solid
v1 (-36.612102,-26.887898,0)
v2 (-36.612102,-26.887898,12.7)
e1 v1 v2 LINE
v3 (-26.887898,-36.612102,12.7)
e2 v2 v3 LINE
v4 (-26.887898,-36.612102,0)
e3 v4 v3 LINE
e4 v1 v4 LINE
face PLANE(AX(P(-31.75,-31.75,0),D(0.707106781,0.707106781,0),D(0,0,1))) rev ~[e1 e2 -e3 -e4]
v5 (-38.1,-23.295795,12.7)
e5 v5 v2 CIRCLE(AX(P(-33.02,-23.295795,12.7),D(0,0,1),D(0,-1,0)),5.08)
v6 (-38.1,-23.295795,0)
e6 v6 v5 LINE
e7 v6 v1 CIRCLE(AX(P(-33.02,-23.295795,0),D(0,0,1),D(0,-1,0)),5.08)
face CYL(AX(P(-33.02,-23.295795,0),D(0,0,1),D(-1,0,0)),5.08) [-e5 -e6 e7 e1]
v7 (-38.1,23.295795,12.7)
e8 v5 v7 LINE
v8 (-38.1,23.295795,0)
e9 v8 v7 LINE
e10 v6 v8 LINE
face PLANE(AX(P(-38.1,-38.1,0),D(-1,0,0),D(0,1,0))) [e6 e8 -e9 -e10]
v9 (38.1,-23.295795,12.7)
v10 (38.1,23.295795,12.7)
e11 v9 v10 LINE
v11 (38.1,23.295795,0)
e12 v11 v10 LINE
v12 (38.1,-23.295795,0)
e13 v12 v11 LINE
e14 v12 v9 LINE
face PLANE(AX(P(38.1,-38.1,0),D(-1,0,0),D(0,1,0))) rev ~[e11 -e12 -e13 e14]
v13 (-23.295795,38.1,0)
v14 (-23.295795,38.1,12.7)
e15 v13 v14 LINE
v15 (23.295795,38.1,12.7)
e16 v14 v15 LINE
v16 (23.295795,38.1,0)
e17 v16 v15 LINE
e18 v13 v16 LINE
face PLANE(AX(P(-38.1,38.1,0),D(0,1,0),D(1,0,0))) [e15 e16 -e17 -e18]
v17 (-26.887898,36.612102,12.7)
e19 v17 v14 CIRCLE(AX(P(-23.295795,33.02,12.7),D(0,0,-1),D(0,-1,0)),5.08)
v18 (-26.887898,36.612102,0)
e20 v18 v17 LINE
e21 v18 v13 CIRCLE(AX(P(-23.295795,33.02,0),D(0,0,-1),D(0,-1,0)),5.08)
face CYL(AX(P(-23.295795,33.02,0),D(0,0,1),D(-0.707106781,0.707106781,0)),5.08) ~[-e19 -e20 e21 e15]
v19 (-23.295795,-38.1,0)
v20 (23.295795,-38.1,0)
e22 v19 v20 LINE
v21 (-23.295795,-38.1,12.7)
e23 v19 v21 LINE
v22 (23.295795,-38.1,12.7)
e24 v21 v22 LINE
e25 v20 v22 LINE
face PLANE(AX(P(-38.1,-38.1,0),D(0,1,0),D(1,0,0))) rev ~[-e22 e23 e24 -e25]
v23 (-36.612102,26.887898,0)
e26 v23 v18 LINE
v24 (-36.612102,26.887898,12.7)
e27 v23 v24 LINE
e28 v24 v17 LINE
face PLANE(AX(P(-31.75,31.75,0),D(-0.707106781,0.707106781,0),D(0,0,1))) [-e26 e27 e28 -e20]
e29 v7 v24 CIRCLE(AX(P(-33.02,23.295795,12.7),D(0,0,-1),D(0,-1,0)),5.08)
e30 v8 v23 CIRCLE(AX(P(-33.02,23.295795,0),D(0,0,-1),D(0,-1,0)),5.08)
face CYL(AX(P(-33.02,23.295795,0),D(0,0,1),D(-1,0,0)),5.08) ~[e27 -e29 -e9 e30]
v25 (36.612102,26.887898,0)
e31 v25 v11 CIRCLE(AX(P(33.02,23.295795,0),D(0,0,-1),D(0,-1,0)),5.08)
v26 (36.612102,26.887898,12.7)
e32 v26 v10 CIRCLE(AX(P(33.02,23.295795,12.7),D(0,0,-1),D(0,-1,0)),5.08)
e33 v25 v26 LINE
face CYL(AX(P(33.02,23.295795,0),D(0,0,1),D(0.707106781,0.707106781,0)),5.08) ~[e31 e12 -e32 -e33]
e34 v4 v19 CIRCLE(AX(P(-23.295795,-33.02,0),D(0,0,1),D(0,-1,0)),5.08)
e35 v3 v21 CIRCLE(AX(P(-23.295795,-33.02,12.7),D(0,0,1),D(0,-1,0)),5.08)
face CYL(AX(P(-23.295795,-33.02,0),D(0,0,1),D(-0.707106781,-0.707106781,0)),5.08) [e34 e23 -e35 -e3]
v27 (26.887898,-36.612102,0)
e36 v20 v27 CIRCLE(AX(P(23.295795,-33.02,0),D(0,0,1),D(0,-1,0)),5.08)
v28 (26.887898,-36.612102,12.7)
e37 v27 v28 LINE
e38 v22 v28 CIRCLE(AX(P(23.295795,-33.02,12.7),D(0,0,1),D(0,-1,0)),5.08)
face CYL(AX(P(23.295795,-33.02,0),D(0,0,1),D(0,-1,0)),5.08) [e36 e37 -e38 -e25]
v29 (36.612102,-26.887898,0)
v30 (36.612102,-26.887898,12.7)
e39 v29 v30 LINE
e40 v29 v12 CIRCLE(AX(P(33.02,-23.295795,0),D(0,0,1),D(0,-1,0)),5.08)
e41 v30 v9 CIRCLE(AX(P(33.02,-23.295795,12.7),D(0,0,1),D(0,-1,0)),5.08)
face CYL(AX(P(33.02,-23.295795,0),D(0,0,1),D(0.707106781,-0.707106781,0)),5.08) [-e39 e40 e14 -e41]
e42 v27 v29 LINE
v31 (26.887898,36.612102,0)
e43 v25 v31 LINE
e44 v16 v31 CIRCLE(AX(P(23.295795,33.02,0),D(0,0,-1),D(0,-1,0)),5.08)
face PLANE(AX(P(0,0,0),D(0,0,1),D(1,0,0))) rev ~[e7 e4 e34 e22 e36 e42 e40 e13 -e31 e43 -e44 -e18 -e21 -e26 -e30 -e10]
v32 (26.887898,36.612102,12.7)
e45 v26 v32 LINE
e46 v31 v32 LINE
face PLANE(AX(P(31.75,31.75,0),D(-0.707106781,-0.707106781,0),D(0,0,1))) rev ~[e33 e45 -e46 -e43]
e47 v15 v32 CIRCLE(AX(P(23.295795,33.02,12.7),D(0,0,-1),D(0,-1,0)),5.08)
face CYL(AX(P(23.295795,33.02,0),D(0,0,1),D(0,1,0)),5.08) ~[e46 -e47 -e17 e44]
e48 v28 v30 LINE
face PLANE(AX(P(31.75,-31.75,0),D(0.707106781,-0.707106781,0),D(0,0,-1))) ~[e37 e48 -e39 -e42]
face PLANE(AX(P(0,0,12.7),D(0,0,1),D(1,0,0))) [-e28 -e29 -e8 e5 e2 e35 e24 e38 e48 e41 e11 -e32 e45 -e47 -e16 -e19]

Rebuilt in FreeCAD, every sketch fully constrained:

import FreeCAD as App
import Part
import Sketcher
from FreeCAD import Vector
Q = App.Units.Quantity


def edges_at(feature, points):
    """Names of the edges that pass closest to the given points."""
    edges = feature.Shape.Edges
    near = lambda p: min(range(len(edges)), key=lambda i: edges[i].distToShape(Part.Vertex(*p))[0])
    return sorted({f"Edge{near(p) + 1}" for p in points})


def add_polygon(sketch, points):
    """Adds a closed chain of lines whose ends are joined by coincident constraints."""
    first, n = sketch.GeometryCount, len(points)
    for a, b in zip(points, points[1:] + points[:1]):
        sketch.addGeometry(Part.LineSegment(App.Vector(*a, 0), App.Vector(*b, 0)), False)
    for i in range(n):
        sketch.addConstraint(Sketcher.Constraint("Coincident", first + i, 2, first + (i + 1) % n, 1))

doc = App.newDocument("Part")
body = doc.addObject("PartDesign::Body", "Body")

# Sketch on XY plane
sketch1 = body.newObject("Sketcher::SketchObject", "Sketch")
sketch1.AttachmentSupport = (doc.getObject("XY_Plane"), [""])
sketch1.MapMode = "FlatFace"
add_polygon(sketch1, [(-38.1, 38.1), (-38.1, -38.1), (38.1, -38.1), (38.1, 38.1)])  # lines 0-3
sketch1.addConstraint(Sketcher.Constraint("Vertical", 0))
sketch1.addConstraint(Sketcher.Constraint("Horizontal", 1))
sketch1.addConstraint(Sketcher.Constraint("Vertical", 2))
sketch1.addConstraint(Sketcher.Constraint("Horizontal", 3))
sketch1.addConstraint(Sketcher.Constraint("Symmetric", 0, 2, 2, 2, -1, 1))
sketch1.addConstraint(Sketcher.Constraint("Equal", 3, 0))
sketch1.addConstraint(Sketcher.Constraint("DistanceX", 1, 1, 1, 2, Q("3 in")))
pad1 = body.newObject("PartDesign::Pad", "Pad")
pad1.Profile = sketch1
pad1.Length = Q("0.5 in")
doc.recompute()

chamfer = body.newObject("PartDesign::Chamfer", "Chamfer")
chamfer.Base = (pad1, edges_at(pad1, [
    (-38.1, -38.1, 6.35),
    (38.1, -38.1, 6.35),
    (-38.1, 38.1, 6.35),
    (38.1, 38.1, 6.35),
]))
chamfer.Size = Q("0.5 in")
doc.recompute()

fillet = body.newObject("PartDesign::Fillet", "Fillet")
fillet.Base = (chamfer, edges_at(chamfer, [
    (25.4, -38.1, 6.35),
    (38.1, -25.4, 6.35),
    (38.1, 25.4, 6.35),
    (25.4, 38.1, 6.35),
    (-25.4, 38.1, 6.35),
    (-38.1, 25.4, 6.35),
    (-38.1, -25.4, 6.35),
    (-25.4, -38.1, 6.35),
]))
fillet.Radius = Q("0.2 in")

doc.recompute()
